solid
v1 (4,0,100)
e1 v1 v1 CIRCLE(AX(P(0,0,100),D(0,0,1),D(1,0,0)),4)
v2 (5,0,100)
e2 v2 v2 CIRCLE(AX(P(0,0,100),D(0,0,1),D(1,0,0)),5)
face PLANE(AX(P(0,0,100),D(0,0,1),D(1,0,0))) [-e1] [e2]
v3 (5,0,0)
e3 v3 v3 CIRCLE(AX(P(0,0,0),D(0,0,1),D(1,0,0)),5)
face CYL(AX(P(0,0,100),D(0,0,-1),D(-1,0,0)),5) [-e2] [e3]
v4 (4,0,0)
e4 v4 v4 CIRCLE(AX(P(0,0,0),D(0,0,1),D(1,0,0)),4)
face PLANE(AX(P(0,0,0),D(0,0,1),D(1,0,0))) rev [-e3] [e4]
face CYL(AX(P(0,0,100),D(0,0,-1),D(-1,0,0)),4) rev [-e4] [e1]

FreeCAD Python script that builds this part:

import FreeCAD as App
import Part
import Sketcher

doc = App.newDocument("Part")
body = doc.addObject("PartDesign::Body", "Body")

# Sketch on XY plane
sketch1 = body.newObject("Sketcher::SketchObject", "Sketch")
sketch1.AttachmentSupport = (doc.getObject("XY_Plane"), [""])
sketch1.MapMode = "FlatFace"
sketch1.addGeometry([
    Part.Circle(App.Vector(0, 0, 0), App.Vector(0, 0, 1), 5),
    Part.Circle(App.Vector(0, 0, 0), App.Vector(0, 0, 1), 4),
], False)
sketch1.addConstraint([
    Sketcher.Constraint("Coincident", 0, 3, -1, 1),
    Sketcher.Constraint("Coincident", 1, 3, -1, 1),
    Sketcher.Constraint("Diameter", 0, 10.0),
    Sketcher.Constraint("Diameter", 1, 8.0),
])
pad1 = body.newObject("PartDesign::Pad", "Pad")
pad1.Profile = sketch1
pad1.Length = 100

doc.recompute()
